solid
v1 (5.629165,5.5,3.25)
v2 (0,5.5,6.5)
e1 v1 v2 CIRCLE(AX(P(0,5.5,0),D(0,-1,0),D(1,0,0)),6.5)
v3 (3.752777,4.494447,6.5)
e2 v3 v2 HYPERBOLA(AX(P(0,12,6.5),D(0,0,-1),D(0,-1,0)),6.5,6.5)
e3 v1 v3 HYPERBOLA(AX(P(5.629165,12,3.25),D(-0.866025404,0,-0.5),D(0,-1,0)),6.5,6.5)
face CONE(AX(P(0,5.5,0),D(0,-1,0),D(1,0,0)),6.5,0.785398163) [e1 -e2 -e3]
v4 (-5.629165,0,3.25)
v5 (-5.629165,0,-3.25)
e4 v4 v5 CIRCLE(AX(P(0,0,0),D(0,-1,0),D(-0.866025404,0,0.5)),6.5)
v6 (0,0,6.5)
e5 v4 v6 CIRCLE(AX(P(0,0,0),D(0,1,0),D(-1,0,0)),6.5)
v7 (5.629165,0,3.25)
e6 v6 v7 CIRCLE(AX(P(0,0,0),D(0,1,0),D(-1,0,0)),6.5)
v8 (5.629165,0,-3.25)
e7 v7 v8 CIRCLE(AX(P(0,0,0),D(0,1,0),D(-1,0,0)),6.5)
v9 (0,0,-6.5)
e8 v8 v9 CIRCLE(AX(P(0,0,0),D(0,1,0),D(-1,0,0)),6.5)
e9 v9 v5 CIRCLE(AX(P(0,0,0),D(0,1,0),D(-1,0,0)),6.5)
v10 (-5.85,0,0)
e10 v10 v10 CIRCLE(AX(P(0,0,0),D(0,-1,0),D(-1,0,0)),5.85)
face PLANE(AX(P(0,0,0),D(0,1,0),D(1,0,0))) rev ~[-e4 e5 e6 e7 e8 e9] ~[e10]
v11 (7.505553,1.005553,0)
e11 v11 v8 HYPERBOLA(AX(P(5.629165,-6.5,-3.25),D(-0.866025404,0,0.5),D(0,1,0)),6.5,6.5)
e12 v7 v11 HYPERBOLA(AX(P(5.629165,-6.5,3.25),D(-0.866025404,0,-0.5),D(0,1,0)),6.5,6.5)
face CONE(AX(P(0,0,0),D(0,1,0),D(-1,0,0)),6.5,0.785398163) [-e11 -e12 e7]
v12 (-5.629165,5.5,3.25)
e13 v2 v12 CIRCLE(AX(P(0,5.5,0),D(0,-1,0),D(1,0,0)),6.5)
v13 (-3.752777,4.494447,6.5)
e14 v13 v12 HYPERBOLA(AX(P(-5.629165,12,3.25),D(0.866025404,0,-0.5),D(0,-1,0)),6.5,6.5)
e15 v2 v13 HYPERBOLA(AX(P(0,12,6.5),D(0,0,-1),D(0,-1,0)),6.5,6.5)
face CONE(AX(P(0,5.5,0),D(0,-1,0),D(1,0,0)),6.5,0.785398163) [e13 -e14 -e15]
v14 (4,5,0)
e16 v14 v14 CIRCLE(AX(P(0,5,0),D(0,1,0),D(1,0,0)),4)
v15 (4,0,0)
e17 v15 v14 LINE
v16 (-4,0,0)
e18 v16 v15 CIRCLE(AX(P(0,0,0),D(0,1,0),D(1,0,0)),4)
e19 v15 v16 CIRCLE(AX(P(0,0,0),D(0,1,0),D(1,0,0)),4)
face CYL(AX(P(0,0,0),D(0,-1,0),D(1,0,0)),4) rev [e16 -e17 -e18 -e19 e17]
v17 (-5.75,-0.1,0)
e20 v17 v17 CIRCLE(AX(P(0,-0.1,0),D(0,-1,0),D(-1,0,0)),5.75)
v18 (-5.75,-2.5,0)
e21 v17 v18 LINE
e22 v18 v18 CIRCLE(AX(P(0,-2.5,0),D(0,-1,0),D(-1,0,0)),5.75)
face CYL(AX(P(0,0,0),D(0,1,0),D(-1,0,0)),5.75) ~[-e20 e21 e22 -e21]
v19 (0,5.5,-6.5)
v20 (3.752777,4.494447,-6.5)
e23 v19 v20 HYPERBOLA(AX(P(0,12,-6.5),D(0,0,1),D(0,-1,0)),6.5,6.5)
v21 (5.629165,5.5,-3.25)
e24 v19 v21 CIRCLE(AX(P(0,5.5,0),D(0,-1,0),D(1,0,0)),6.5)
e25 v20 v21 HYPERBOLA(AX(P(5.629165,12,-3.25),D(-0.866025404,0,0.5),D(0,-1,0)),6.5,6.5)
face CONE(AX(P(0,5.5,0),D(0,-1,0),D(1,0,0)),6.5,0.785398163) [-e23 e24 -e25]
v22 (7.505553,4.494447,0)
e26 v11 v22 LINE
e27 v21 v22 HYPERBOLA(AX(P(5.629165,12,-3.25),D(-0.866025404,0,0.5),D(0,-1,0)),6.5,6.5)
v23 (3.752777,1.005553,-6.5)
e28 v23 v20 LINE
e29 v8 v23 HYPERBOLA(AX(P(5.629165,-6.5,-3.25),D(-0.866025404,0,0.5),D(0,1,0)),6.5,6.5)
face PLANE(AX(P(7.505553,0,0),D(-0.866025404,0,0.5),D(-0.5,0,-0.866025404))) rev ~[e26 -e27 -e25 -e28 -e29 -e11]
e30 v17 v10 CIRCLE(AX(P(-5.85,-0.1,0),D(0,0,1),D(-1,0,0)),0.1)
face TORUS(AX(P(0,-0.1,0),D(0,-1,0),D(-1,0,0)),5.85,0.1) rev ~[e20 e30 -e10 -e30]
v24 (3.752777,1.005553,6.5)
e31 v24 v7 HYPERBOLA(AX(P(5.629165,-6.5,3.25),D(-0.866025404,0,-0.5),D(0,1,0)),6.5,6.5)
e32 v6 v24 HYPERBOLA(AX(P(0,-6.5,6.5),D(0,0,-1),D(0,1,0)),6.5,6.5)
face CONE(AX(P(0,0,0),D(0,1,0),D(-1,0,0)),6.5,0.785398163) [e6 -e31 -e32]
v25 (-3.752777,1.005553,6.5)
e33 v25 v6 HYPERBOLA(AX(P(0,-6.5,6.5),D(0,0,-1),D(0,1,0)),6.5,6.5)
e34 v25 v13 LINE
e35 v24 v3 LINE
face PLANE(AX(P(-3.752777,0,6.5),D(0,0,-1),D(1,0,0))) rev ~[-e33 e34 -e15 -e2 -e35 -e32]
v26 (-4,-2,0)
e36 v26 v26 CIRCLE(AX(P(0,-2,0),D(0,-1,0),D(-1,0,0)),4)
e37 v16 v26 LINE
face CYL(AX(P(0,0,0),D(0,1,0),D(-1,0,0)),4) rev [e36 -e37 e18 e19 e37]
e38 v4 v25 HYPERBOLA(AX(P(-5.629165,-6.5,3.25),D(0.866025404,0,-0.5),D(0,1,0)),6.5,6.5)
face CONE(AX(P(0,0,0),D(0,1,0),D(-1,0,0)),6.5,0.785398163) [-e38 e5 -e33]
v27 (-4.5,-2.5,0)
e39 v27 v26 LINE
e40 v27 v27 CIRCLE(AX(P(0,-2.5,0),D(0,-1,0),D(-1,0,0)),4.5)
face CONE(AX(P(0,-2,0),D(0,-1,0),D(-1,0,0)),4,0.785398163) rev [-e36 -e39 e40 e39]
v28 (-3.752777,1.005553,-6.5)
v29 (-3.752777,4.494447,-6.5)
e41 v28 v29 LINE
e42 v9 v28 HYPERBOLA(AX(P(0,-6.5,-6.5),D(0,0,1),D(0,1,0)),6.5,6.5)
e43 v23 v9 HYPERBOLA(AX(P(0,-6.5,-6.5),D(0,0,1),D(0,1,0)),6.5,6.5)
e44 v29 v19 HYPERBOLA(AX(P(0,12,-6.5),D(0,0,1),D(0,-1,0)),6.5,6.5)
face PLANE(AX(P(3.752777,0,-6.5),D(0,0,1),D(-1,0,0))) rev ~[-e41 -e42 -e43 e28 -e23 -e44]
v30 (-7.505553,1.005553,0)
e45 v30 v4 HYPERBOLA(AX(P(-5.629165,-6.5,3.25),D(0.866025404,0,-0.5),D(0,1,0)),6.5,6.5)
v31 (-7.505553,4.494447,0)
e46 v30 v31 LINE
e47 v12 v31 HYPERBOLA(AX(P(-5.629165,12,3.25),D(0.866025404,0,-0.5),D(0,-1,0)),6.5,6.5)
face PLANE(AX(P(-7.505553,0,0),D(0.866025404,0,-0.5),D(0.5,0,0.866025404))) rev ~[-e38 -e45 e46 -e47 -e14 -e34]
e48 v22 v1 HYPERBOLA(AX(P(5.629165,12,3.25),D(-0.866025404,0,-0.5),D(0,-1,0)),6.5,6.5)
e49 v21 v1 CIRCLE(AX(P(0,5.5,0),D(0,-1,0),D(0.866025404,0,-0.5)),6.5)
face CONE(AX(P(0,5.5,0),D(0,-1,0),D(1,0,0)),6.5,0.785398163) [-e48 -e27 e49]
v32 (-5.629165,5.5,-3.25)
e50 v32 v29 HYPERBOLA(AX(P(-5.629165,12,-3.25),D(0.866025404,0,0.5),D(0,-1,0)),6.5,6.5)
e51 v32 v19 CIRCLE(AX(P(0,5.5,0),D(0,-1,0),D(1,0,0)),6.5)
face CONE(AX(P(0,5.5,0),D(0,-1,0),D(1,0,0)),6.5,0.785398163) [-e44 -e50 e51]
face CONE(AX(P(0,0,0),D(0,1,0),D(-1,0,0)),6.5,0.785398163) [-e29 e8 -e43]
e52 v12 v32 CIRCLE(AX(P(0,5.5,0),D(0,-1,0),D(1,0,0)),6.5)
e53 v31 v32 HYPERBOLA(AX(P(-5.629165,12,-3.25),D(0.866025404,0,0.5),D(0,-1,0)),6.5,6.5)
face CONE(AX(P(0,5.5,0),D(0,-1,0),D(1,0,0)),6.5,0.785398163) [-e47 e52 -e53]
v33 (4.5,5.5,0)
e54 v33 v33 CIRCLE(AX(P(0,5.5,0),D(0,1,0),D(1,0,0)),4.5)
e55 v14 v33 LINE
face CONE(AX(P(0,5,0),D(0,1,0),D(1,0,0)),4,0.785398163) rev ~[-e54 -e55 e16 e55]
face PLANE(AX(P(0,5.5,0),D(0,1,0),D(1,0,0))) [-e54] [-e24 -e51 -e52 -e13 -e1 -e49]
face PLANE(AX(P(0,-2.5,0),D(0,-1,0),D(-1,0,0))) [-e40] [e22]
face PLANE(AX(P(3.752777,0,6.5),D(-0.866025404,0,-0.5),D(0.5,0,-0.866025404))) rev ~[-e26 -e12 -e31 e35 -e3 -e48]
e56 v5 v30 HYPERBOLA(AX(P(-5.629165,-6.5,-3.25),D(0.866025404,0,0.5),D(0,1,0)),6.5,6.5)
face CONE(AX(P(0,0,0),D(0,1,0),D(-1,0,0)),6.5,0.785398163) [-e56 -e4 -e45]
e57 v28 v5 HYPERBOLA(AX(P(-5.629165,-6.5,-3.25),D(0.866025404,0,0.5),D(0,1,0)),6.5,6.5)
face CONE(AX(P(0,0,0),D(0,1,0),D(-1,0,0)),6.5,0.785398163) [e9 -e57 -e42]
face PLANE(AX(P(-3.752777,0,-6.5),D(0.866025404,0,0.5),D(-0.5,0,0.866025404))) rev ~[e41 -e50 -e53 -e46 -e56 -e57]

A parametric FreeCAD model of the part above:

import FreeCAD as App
import Part
import Sketcher

V = App.Vector
Q = App.Units.Quantity


def edges_at(feature, points):
    """Names of the edges that pass closest to the given points."""
    edges = feature.Shape.Edges
    near = lambda p: min(range(len(edges)), key=lambda i: edges[i].distToShape(Part.Vertex(*p))[0])
    return sorted({f"Edge{near(p) + 1}" for p in points})


def add_polygon(sketch, points):
    """Adds a closed chain of lines whose ends are joined by coincident constraints."""
    first, n = sketch.GeometryCount, len(points)
    for a, b in zip(points, points[1:] + points[:1]):
        sketch.addGeometry(Part.LineSegment(App.Vector(*a, 0), App.Vector(*b, 0)), False)
    for i in range(n):
        sketch.addConstraint(Sketcher.Constraint("Coincident", first + i, 2, first + (i + 1) % n, 1))

doc = App.newDocument("Part")
body = doc.addObject("PartDesign::Body", "Body")

# Sketch on XZ plane
sketch1 = doc.addObject("Sketcher::SketchObject", "Sketch")
body.addObject(sketch1)
sketch1.AttachmentSupport = (doc.XZ_Plane, [""])
sketch1.MapMode = "FlatFace"
add_polygon(sketch1, [(7.5, 0), (3.8, -6.5), (-3.8, -6.5), (-7.5, 0), (-3.8, 6.5), (3.8, 6.5)])  # lines 0-5
sketch1.addGeometry(Part.Circle(V(0, 0, 0), V(0, 0, 1), 4), False)  # 6
sketch1.addConstraint([
    Sketcher.Constraint("Horizontal", 1),
    Sketcher.Constraint("Horizontal", 4),
    Sketcher.Constraint("Coincident", 6, 3, -1, 1),
    Sketcher.Constraint("Symmetric", 0, 2, 3, 2, -1, 1),
    Sketcher.Constraint("Symmetric", 2, 2, 5, 2, -1, 1),
    Sketcher.Constraint("PointOnObject", 2, 2, -1),
    Sketcher.Constraint("Parallel", 2, 5),
    Sketcher.Constraint("Vertical", 1, 2, 3, 2),
    Sketcher.Constraint("Diameter", 6, 8.0),
    Sketcher.Constraint("Angle", 0, Q("-120 deg")),
    Sketcher.Constraint("DistanceY", 1, 2, 3, 2, 13.0),
    Sketcher.Constraint("DistanceX", 1, 2, 1, 1, 7.505554),
])
pad1 = doc.addObject("PartDesign::Pad", "Pad")
body.addObject(pad1)
pad1.Profile = sketch1
pad1.Length = 5.5
pad1.Reversed = True

# Sketch on XZ plane
sketch2 = doc.addObject("Sketcher::SketchObject", "Sketch001")
body.addObject(sketch2)
sketch2.AttachmentSupport = (doc.XZ_Plane, [""])
sketch2.MapMode = "FlatFace"
sketch2.AttachmentOffset = App.Placement(V(0, 0, -5.5), App.Rotation())
add_polygon(sketch2, [(-17, -16), (-17, 16), (17, 16), (17, -16)])  # lines 0-3
sketch2.addGeometry(Part.Circle(V(0, 0, 0), V(0, 0, 1), 6), False)  # 4
sketch2.addConstraint([
    Sketcher.Constraint("Vertical", 0),
    Sketcher.Constraint("Horizontal", 1),
    Sketcher.Constraint("Vertical", 2),
    Sketcher.Constraint("Horizontal", 3),
    Sketcher.Constraint("Coincident", 4, 3, -1, 1),
    Sketcher.Constraint("Symmetric", 0, 2, 2, 2, -1, 1),
    Sketcher.Constraint("Diameter", 4, 13.0),
    Sketcher.Constraint("DistanceX", 1, 1, 1, 2, 34.134),
    Sketcher.Constraint("DistanceY", 0, 1, 0, 2, 32.122),
])
pocket1 = doc.addObject("PartDesign::Pocket", "Pocket")
body.addObject(pocket1)
pocket1.Profile = sketch2
pocket1.Length = 6.5
pocket1.Reversed = True
pocket1.TaperAngle = 45

# Sketch on XZ plane
sketch3 = doc.addObject("Sketcher::SketchObject", "Sketch002")
body.addObject(sketch3)
sketch3.AttachmentSupport = (doc.XZ_Plane, [""])
sketch3.MapMode = "FlatFace"
sketch3.addGeometry([
    Part.Circle(V(0, 0, 0), V(0, 0, 1), 5.8),
    Part.Circle(V(0, 0, 0), V(0, 0, 1), 4),
], False)
sketch3.addConstraint([
    Sketcher.Constraint("Coincident", 0, 3, -1, 1),
    Sketcher.Constraint("Coincident", 1, 3, -1, 1),
    Sketcher.Constraint("Diameter", 1, 8.0),
    Sketcher.Constraint("Diameter", 0, 11.5),
])
pad2 = doc.addObject("PartDesign::Pad", "Pad001")
body.addObject(pad2)
pad2.Profile = sketch3
pad2.Length = 2.5

# Sketch on XZ plane
sketch4 = doc.addObject("Sketcher::SketchObject", "Sketch003")
body.addObject(sketch4)
sketch4.AttachmentSupport = (doc.XZ_Plane, [""])
sketch4.MapMode = "FlatFace"
add_polygon(sketch4, [(21, -20), (21, 20), (-21, 20), (-21, -20)])  # lines 0-3
sketch4.addGeometry(Part.Circle(V(0, 0, 0), V(0, 0, 1), 6), False)  # 4
sketch4.addConstraint([
    Sketcher.Constraint("Vertical", 0),
    Sketcher.Constraint("Horizontal", 1),
    Sketcher.Constraint("Vertical", 2),
    Sketcher.Constraint("Horizontal", 3),
    Sketcher.Constraint("Coincident", 4, 3, -1, 1),
    Sketcher.Constraint("Symmetric", 0, 2, 2, 2, -1, 1),
    Sketcher.Constraint("Diameter", 4, 13.0),
    Sketcher.Constraint("DistanceX", 1, 2, 1, 1, 41.294),
    Sketcher.Constraint("DistanceY", 0, 1, 0, 2, 39.282),
])
pocket2 = doc.addObject("PartDesign::Pocket", "Pocket001")
body.addObject(pocket2)
pocket2.Profile = sketch4
pocket2.Length = 10
pocket2.TaperAngle = 45
doc.recompute()

fillet = doc.addObject("PartDesign::Fillet", "Fillet")
body.addObject(fillet)
fillet.Base = (pocket2, edges_at(pocket2, [(5.75, 0, 0)]))
fillet.Radius = 0.1
doc.recompute()

chamfer = doc.addObject("PartDesign::Chamfer", "Chamfer")
body.addObject(chamfer)
chamfer.Base = (fillet, edges_at(fillet, [(-4, 5.5, 0), (4, -2.5, 0)]))
chamfer.Size = 0.5

doc.recompute()
